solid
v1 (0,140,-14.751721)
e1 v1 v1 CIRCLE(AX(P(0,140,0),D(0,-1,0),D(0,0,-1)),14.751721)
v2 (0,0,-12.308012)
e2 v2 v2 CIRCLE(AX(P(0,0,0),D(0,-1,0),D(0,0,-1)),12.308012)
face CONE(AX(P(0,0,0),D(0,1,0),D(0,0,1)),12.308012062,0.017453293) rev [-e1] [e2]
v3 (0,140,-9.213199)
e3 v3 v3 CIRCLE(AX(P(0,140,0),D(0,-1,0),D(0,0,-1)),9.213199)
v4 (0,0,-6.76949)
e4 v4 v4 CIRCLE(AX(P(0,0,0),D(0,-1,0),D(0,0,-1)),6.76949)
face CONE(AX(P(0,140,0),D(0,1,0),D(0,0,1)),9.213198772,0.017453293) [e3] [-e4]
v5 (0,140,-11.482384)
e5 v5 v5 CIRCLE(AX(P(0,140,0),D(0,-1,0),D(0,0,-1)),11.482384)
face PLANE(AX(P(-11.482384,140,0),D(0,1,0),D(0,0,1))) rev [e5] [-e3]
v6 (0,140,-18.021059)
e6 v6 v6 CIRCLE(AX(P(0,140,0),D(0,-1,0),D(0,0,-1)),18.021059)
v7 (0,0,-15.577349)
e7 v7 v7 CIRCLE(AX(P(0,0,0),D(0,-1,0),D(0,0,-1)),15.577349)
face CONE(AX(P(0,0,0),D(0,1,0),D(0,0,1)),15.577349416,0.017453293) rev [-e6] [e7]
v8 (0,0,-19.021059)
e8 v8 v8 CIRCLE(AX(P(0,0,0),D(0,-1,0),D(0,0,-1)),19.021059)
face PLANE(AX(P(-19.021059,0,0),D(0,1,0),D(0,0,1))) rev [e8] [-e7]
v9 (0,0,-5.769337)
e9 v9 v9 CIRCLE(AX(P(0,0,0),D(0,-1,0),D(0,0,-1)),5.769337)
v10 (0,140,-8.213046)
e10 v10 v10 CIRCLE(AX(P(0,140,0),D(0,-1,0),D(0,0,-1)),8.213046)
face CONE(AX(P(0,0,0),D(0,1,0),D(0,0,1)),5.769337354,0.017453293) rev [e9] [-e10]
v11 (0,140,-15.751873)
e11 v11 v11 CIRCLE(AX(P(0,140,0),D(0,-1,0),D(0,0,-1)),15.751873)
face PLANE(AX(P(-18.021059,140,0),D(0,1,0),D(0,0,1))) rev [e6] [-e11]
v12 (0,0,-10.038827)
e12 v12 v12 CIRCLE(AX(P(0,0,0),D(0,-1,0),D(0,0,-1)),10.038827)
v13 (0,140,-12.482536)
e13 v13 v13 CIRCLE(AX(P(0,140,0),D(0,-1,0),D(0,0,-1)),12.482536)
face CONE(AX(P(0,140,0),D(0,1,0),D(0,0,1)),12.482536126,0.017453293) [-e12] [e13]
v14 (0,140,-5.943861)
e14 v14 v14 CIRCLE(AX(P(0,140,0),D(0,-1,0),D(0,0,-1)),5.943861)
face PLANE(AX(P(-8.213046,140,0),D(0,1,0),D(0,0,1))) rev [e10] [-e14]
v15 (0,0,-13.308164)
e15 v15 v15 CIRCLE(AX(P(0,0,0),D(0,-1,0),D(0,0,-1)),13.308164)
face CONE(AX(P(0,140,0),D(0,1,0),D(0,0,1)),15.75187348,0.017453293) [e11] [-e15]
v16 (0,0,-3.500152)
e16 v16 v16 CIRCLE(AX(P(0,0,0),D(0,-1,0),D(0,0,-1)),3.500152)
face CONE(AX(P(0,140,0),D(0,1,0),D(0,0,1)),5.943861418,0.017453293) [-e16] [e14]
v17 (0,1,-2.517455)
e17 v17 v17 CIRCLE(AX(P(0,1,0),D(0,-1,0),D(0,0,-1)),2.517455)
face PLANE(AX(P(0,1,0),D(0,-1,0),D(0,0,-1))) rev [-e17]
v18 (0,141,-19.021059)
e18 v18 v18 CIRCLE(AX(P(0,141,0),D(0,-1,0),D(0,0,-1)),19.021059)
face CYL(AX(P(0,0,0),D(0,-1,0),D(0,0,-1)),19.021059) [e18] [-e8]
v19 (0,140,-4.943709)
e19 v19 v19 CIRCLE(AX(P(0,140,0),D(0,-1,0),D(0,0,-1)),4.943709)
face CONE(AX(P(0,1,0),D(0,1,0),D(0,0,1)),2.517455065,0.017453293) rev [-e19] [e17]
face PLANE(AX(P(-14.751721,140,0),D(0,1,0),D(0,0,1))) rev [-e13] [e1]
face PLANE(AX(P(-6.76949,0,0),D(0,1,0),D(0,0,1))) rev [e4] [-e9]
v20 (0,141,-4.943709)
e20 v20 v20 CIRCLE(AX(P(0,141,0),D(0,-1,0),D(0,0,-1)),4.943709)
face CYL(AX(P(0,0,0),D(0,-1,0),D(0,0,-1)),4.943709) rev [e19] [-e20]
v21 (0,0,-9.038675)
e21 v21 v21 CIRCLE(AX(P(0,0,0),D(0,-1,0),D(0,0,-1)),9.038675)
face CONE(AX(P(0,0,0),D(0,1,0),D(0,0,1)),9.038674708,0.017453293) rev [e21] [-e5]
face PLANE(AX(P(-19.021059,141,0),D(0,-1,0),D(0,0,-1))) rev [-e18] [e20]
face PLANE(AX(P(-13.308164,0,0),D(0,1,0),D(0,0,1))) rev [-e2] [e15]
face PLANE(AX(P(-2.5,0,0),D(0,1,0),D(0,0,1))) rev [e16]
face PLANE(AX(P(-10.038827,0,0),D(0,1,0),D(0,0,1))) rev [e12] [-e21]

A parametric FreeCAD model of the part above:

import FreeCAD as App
import Part
import Sketcher
Q = App.Units.Quantity


def add_polygon(sketch, points):
    """Adds a closed chain of lines whose ends are joined by coincident constraints."""
    first, n = sketch.GeometryCount, len(points)
    for a, b in zip(points, points[1:] + points[:1]):
        sketch.addGeometry(Part.LineSegment(App.Vector(*a, 0), App.Vector(*b, 0)), False)
    for i in range(n):
        sketch.addConstraint(Sketcher.Constraint("Coincident", first + i, 2, first + (i + 1) % n, 1))

doc = App.newDocument("Part")
body = doc.addObject("PartDesign::Body", "Body")

# Sketch on XY plane
sketch1 = body.newObject("Sketcher::SketchObject", "Sketch")
sketch1.AttachmentSupport = (doc.getObject("XY_Plane"), [""])
sketch1.MapMode = "FlatFace"
add_polygon(sketch1, [(-2.5, 1), (-4.9, 140), (-4.9, 141), (-19, 141), (-19, 0), (-15.6, 0), (-18, 140), (-15.8, 140), (-13.3, 0), (-12.3, 0), (-14.8, 140), (-12.5, 140), (-10, 0), (-9, 0), (-11.5, 140), (-9.2, 140), (-6.8, 0), (-5.8, 0), (-8.2, 140), (-5.9, 140), (-3.5, 0), (0, 0), (0, 1)])  # lines 0-22
sketch1.addConstraint([
    Sketcher.Constraint("Vertical", 1),
    Sketcher.Constraint("Horizontal", 2),
    Sketcher.Constraint("Vertical", 3),
    Sketcher.Constraint("Horizontal", 4),
    Sketcher.Constraint("Horizontal", 6),
    Sketcher.Constraint("Horizontal", 8),
    Sketcher.Constraint("Horizontal", 10),
    Sketcher.Constraint("Horizontal", 12),
    Sketcher.Constraint("Horizontal", 14),
    Sketcher.Constraint("Horizontal", 16),
    Sketcher.Constraint("Horizontal", 18),
    Sketcher.Constraint("Horizontal", 20),
    Sketcher.Constraint("Vertical", 21),
    Sketcher.Constraint("Horizontal", 22),
    Sketcher.Constraint("Coincident", 20, 2, -1, 1),
    Sketcher.Constraint("PointOnObject", 3, 2, -1),
    Sketcher.Constraint("PointOnObject", 7, 2, -1),
    Sketcher.Constraint("PointOnObject", 11, 2, -1),
    Sketcher.Constraint("PointOnObject", 15, 2, -1),
    Sketcher.Constraint("Parallel", 0, 5),
    Sketcher.Constraint("Parallel", 5, 7),
    Sketcher.Constraint("Parallel", 7, 9),
    Sketcher.Constraint("Parallel", 9, 11),
    Sketcher.Constraint("Parallel", 11, 13),
    Sketcher.Constraint("Parallel", 13, 15),
    Sketcher.Constraint("Parallel", 15, 17),
    Sketcher.Constraint("Parallel", 17, 19),
    Sketcher.Constraint("Horizontal", 0, 2, 5, 2),
    Sketcher.Constraint("Horizontal", 6, 2, 9, 2),
    Sketcher.Constraint("Horizontal", 10, 2, 13, 2),
    Sketcher.Constraint("Horizontal", 14, 2, 17, 2),
    Sketcher.Constraint("Equal", 6, 10),
    Sketcher.Constraint("Equal", 8, 12),
    Sketcher.Constraint("Equal", 10, 14),
    Sketcher.Constraint("Equal", 12, 16),
    Sketcher.Constraint("Equal", 14, 18),
    Sketcher.Constraint("Equal", 1, 21),
    Sketcher.Constraint("DistanceY", 1, 1, 1, 2, 1.0),
    Sketcher.Constraint("DistanceY", 3, 2, 3, 1, 141.0),
    Sketcher.Constraint("Angle", 0, Q("91 deg")),
    Sketcher.Constraint("DistanceX", 2, 2, 5, 2, 1.0),
    Sketcher.Constraint("DistanceX", 2, 2, 2, 1, 14.077349),
    Sketcher.Constraint("DistanceX", 14, 2, -1, 1, 9.213199),
    Sketcher.Constraint("DistanceX", 6, 1, 6, 2, 2.269185),
    Sketcher.Constraint("DistanceX", 8, 1, 8, 2, 1.000152),
])
revolution = body.newObject("PartDesign::Revolution", "Revolution")
revolution.Profile = sketch1
revolution.ReferenceAxis = (sketch1, ["V_Axis"])
revolution.Angle = 360

doc.recompute()
